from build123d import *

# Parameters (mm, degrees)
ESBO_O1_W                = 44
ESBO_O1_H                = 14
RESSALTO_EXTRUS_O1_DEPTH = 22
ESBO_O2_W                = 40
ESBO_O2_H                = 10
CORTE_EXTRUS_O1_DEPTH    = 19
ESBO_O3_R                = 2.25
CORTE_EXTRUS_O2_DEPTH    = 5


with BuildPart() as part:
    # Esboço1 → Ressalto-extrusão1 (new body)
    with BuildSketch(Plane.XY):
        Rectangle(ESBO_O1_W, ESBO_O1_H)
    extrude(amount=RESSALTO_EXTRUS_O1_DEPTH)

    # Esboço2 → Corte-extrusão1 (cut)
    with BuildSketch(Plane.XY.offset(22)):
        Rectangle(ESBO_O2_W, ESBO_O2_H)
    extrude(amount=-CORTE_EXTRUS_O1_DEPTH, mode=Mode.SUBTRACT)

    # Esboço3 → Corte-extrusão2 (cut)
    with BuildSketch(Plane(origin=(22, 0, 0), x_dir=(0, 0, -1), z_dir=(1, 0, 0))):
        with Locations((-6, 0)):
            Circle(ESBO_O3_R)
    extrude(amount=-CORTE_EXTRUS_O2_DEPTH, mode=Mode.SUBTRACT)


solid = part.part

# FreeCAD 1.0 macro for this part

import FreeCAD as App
import Part
import Sketcher

V = App.Vector
Q = App.Units.Quantity

doc = App.newDocument("Part")
body = doc.addObject("PartDesign::Body", "Body")

# Sketch on XY plane
sketch1 = body.newObject("Sketcher::SketchObject", "Sketch")
sketch1.AttachmentSupport = (doc.getObject("XY_Plane"), [""])
sketch1.MapMode = "FlatFace"
sketch1.addGeometry([
    Part.LineSegment(V(-22, 7, 0), V(-22, -7, 0)),
    Part.LineSegment(V(-22, -7, 0), V(22, -7, 0)),
    Part.LineSegment(V(22, -7, 0), V(22, 7, 0)),
    Part.LineSegment(V(22, 7, 0), V(-22, 7, 0)),
], False)
sketch1.addConstraint([
    Sketcher.Constraint("Coincident", 0, 2, 1, 1),
    Sketcher.Constraint("Coincident", 1, 2, 2, 1),
    Sketcher.Constraint("Coincident", 2, 2, 3, 1),
    Sketcher.Constraint("Coincident", 3, 2, 0, 1),
    Sketcher.Constraint("Vertical", 0),
    Sketcher.Constraint("Horizontal", 1),
    Sketcher.Constraint("Vertical", 2),
    Sketcher.Constraint("Horizontal", 3),
    Sketcher.Constraint("Symmetric", 0, 2, 2, 2, -1, 1),
    Sketcher.Constraint("DistanceX", 1, 1, 1, 2, Q("44 mm")),
    Sketcher.Constraint("DistanceY", 0, 2, 0, 1, Q("14 mm")),
])
pad1 = body.newObject("PartDesign::Pad", "Pad")
pad1.Profile = sketch1
pad1.Length = 22

# Sketch on XY plane
sketch2 = body.newObject("Sketcher::SketchObject", "Sketch001")
sketch2.AttachmentSupport = (doc.getObject("XY_Plane"), [""])
sketch2.MapMode = "FlatFace"
sketch2.AttachmentOffset = App.Placement(V(0, 0, 22), App.Rotation())
sketch2.addGeometry([
    Part.LineSegment(V(-20, 5, 0), V(-20, -5, 0)),
    Part.LineSegment(V(-20, -5, 0), V(20, -5, 0)),
    Part.LineSegment(V(20, -5, 0), V(20, 5, 0)),
    Part.LineSegment(V(20, 5, 0), V(-20, 5, 0)),
], False)
sketch2.addConstraint([
    Sketcher.Constraint("Coincident", 0, 2, 1, 1),
    Sketcher.Constraint("Coincident", 1, 2, 2, 1),
    Sketcher.Constraint("Coincident", 2, 2, 3, 1),
    Sketcher.Constraint("Coincident", 3, 2, 0, 1),
    Sketcher.Constraint("Vertical", 0),
    Sketcher.Constraint("Horizontal", 1),
    Sketcher.Constraint("Vertical", 2),
    Sketcher.Constraint("Horizontal", 3),
    Sketcher.Constraint("Symmetric", 0, 2, 2, 2, -1, 1),
    Sketcher.Constraint("DistanceX", 1, 1, 1, 2, Q("40 mm")),
    Sketcher.Constraint("DistanceY", 0, 2, 0, 1, Q("10 mm")),
])
pocket1 = body.newObject("PartDesign::Pocket", "Pocket")
pocket1.Profile = sketch2
pocket1.Length = 19

# Sketch on YZ plane
sketch3 = body.newObject("Sketcher::SketchObject", "Sketch002")
sketch3.AttachmentSupport = (doc.getObject("YZ_Plane"), [""])
sketch3.MapMode = "FlatFace"
sketch3.AttachmentOffset = App.Placement(V(0, 0, 22), App.Rotation())
sketch3.addGeometry(Part.Circle(V(0, 6, 0), V(0, 0, 1), 2.2), False)
sketch3.addConstraint([
    Sketcher.Constraint("PointOnObject", 0, 3, -2),
    Sketcher.Constraint("Diameter", 0, Q("4.5 mm")),
    Sketcher.Constraint("DistanceY", -1, 1, 0, 3, Q("6 mm")),
])
pocket2 = body.newObject("PartDesign::Pocket", "Pocket001")
pocket2.Profile = sketch3
pocket2.Length = 5

doc.recompute()
